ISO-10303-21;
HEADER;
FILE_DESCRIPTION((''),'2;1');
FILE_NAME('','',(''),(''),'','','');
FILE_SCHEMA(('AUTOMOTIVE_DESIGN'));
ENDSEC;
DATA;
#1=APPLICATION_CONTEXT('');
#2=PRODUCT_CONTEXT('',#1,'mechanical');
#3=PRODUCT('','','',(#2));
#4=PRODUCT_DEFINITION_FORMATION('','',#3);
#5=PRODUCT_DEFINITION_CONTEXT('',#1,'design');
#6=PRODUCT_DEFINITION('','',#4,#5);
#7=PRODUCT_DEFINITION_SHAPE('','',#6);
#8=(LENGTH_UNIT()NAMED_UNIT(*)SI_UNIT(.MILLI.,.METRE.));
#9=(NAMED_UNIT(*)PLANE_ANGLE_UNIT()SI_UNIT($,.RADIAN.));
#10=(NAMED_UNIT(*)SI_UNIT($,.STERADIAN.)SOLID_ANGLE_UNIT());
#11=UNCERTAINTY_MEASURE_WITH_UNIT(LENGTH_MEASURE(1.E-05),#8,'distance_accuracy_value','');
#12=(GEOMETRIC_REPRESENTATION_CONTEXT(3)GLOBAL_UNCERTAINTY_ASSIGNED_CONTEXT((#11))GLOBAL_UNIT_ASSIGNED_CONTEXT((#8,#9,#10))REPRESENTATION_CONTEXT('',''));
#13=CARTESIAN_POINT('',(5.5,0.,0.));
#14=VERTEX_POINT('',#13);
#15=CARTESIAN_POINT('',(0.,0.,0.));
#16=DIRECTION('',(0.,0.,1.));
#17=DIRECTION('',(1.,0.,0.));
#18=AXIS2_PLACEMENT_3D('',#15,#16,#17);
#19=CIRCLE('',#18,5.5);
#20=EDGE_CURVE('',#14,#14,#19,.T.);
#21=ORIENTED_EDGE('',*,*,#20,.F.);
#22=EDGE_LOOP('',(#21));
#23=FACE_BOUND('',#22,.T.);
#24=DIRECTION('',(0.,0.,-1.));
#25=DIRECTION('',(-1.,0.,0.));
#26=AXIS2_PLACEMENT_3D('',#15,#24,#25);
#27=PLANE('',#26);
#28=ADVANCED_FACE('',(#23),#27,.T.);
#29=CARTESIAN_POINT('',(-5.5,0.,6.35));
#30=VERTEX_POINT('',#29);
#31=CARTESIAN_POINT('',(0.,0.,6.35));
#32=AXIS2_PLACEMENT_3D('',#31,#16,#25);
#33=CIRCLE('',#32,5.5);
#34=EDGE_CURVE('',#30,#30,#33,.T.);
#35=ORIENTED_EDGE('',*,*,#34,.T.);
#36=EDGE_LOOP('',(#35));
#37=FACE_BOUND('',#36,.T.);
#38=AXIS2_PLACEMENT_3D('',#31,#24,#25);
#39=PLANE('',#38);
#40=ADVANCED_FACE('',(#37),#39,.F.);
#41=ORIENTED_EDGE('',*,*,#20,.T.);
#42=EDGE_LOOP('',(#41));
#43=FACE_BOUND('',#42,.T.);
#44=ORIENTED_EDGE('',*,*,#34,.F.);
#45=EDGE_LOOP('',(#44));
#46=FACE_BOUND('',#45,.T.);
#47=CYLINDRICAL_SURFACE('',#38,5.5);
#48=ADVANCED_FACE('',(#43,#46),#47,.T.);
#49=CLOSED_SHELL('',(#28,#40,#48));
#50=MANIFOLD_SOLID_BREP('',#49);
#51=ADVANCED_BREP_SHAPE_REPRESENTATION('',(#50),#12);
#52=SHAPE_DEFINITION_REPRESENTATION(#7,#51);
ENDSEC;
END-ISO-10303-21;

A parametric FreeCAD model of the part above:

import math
import FreeCAD as App
import Part
import Sketcher

V = App.Vector
Q = App.Units.Quantity

doc = App.newDocument("Part")
body = doc.addObject("PartDesign::Body", "Body")

sketch1 = body.newObject("Sketcher::SketchObject", "Sketch")
sketch1.AttachmentSupport = (doc.getObject("XY_Plane"), [""])
sketch1.MapMode = "FlatFace"
sketch1.addGeometry(Part.ArcOfCircle(Part.Circle(V(0, 0, 0), V(0, 0, 1), 5.5), math.radians(117.035692), math.radians(422.964308)), False)
sketch1.addGeometry(Part.ArcOfCircle(Part.Circle(V(0, 0, 0), V(0, 0, 1), 5.5), math.radians(62.964308), math.radians(117.035692)), False)
sketch1.addConstraint(Sketcher.Constraint("Tangent", 0, 1, 1, 2))
sketch1.addConstraint(Sketcher.Constraint("Coincident", 1, 1, 0, 2))
sketch1.addConstraint(Sketcher.Constraint("Coincident", 0, 3, -1, 1))
sketch1.addConstraint(Sketcher.Constraint("Horizontal", 0, 1, 1, 1))
sketch1.addConstraint(Sketcher.Constraint("Radius", 0, Q("5.5 mm")))
sketch1.addConstraint(Sketcher.Constraint("DistanceX", 0, 1, 1, 1, Q("5 mm")))
pad1 = body.newObject("PartDesign::Pad", "Pad")
pad1.Profile = sketch1
pad1.Length = 6.35

doc.recompute()
